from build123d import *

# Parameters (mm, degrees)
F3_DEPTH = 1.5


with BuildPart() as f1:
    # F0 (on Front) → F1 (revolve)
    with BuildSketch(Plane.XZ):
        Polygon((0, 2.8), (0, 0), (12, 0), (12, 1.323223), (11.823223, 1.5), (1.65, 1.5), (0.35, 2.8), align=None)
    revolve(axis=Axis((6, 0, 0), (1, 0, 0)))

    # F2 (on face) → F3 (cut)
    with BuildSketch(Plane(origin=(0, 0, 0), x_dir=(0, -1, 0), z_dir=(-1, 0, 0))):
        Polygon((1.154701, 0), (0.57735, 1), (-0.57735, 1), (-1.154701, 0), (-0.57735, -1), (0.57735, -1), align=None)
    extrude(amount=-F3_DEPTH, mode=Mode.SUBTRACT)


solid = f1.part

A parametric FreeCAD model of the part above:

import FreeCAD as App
import Part
import Sketcher
from FreeCAD import Vector
Q = App.Units.Quantity

doc = App.newDocument("Part")
params = doc.addObject("Spreadsheet::Sheet", "Params")
for row, (alias, value) in enumerate([
    ("sketch1_width", "12 mm"),
    ("sketch1_height", "2.8 mm"),
    ("sketch1_width2", "0.35 mm"),
    ("sketch1_length", "0.25 mm"),
    ("revolution_angle", "360 deg"),
    ("pocket1_length", "1.5 mm"),
], start=1):
    params.set(f"A{row}", alias)
    params.set(f"B{row}", "=" + value)
    params.setAlias(f"B{row}", alias)

body = doc.addObject("PartDesign::Body", "Body")

# Sketch on XZ plane
sketch1 = doc.addObject("Sketcher::SketchObject", "Sketch")
body.addObject(sketch1)
sketch1.AttachmentSupport = (doc.XZ_Plane, [""])
sketch1.MapMode = "FlatFace"
sketch1.addGeometry(Part.LineSegment(Vector(0, 2.8, 0), Vector(0, 0, 0)), False)
sketch1.addGeometry(Part.LineSegment(Vector(0, 0, 0), Vector(12, 0, 0)), False)
sketch1.addGeometry(Part.LineSegment(Vector(12, 0, 0), Vector(12, 1.323223, 0)), False)
sketch1.addGeometry(Part.LineSegment(Vector(12, 1.323223, 0), Vector(11.823223, 1.5, 0)), False)
sketch1.addGeometry(Part.LineSegment(Vector(11.823223, 1.5, 0), Vector(1.65, 1.5, 0)), False)
sketch1.addGeometry(Part.LineSegment(Vector(1.65, 1.5, 0), Vector(0.35, 2.8, 0)), False)
sketch1.addGeometry(Part.LineSegment(Vector(0.35, 2.8, 0), Vector(0, 2.8, 0)), False)
sketch1.addConstraint(Sketcher.Constraint("Coincident", 0, 2, 1, 1))
sketch1.addConstraint(Sketcher.Constraint("Coincident", 1, 2, 2, 1))
sketch1.addConstraint(Sketcher.Constraint("Coincident", 2, 2, 3, 1))
sketch1.addConstraint(Sketcher.Constraint("Coincident", 3, 2, 4, 1))
sketch1.addConstraint(Sketcher.Constraint("Coincident", 4, 2, 5, 1))
sketch1.addConstraint(Sketcher.Constraint("Coincident", 5, 2, 6, 1))
sketch1.addConstraint(Sketcher.Constraint("Coincident", 6, 2, 0, 1))
sketch1.addConstraint(Sketcher.Constraint("Vertical", 0))
sketch1.addConstraint(Sketcher.Constraint("Horizontal", 1))
sketch1.addConstraint(Sketcher.Constraint("Vertical", 2))
sketch1.addConstraint(Sketcher.Constraint("Horizontal", 4))
sketch1.addConstraint(Sketcher.Constraint("Horizontal", 6))
sketch1.addConstraint(Sketcher.Constraint("Coincident", 0, 2, -1, 1))
sketch1.addConstraint(Sketcher.Constraint("Parallel", 3, 5))
sketch1.addConstraint(Sketcher.Constraint("DistanceX", 1, 1, 1, 2, 12.0))
sketch1.addConstraint(Sketcher.Constraint("Angle", 3, Q("135 deg")))
sketch1.addConstraint(Sketcher.Constraint("DistanceY", 0, 2, 0, 1, 2.8))
sketch1.addConstraint(Sketcher.Constraint("DistanceX", 6, 2, 6, 1, 0.35))
sketch1.addConstraint(Sketcher.Constraint("DistanceY", -1, 1, 3, 2, 1.5))
sketch1.addConstraint(Sketcher.Constraint("Distance", 3, 0.25))
sketch1.setExpression("Constraints[14]", "Params.sketch1_width")
sketch1.setExpression("Constraints[16]", "Params.sketch1_height")
sketch1.setExpression("Constraints[17]", "Params.sketch1_width2")
sketch1.setExpression("Constraints[19]", "Params.sketch1_length")
revolution = doc.addObject("PartDesign::Revolution", "Revolution")
body.addObject(revolution)
revolution.Profile = sketch1
revolution.ReferenceAxis = (sketch1, ["H_Axis"])
revolution.setExpression("Angle", "Params.revolution_angle")

# Sketch on YZ plane
sketch2 = doc.addObject("Sketcher::SketchObject", "Sketch001")
body.addObject(sketch2)
sketch2.AttachmentSupport = (doc.YZ_Plane, [""])
sketch2.MapMode = "FlatFace"
sketch2.addGeometry(Part.LineSegment(Vector(-1.154701, 0, 0), Vector(-0.57735, 1, 0)), False)
sketch2.addGeometry(Part.LineSegment(Vector(-0.57735, 1, 0), Vector(0.57735, 1, 0)), False)
sketch2.addGeometry(Part.LineSegment(Vector(0.57735, 1, 0), Vector(1.154701, 0, 0)), False)
sketch2.addGeometry(Part.LineSegment(Vector(1.154701, 0, 0), Vector(0.57735, -1, 0)), False)
sketch2.addGeometry(Part.LineSegment(Vector(0.57735, -1, 0), Vector(-0.57735, -1, 0)), False)
sketch2.addGeometry(Part.LineSegment(Vector(-0.57735, -1, 0), Vector(-1.154701, 0, 0)), False)
sketch2.addConstraint(Sketcher.Constraint("Coincident", 0, 2, 1, 1))
sketch2.addConstraint(Sketcher.Constraint("Coincident", 1, 2, 2, 1))
sketch2.addConstraint(Sketcher.Constraint("Coincident", 2, 2, 3, 1))
sketch2.addConstraint(Sketcher.Constraint("Coincident", 3, 2, 4, 1))
sketch2.addConstraint(Sketcher.Constraint("Coincident", 4, 2, 5, 1))
sketch2.addConstraint(Sketcher.Constraint("Coincident", 5, 2, 0, 1))
sketch2.addConstraint(Sketcher.Constraint("Horizontal", 1))
sketch2.addConstraint(Sketcher.Constraint("Horizontal", 4))
sketch2.addConstraint(Sketcher.Constraint("Symmetric", 0, 2, 3, 2, -1, 1))
sketch2.addConstraint(Sketcher.Constraint("Symmetric", 2, 2, 5, 2, -1, 1))
sketch2.addConstraint(Sketcher.Constraint("PointOnObject", 2, 2, -1))
sketch2.addConstraint(Sketcher.Constraint("Parallel", 2, 5))
sketch2.addConstraint(Sketcher.Constraint("Vertical", 1, 2, 3, 2))
sketch2.addConstraint(Sketcher.Constraint("DistanceY", -1, 1, 0, 2, 1.0))
sketch2.addConstraint(Sketcher.Constraint("DistanceX", 1, 1, 1, 2, 1.1547))
sketch2.addConstraint(Sketcher.Constraint("Distance", 0, 1.154701))
pocket1 = doc.addObject("PartDesign::Pocket", "Pocket")
body.addObject(pocket1)
pocket1.Profile = sketch2
pocket1.setExpression("Length", "Params.pocket1_length")
pocket1.Reversed = True

doc.recompute()
